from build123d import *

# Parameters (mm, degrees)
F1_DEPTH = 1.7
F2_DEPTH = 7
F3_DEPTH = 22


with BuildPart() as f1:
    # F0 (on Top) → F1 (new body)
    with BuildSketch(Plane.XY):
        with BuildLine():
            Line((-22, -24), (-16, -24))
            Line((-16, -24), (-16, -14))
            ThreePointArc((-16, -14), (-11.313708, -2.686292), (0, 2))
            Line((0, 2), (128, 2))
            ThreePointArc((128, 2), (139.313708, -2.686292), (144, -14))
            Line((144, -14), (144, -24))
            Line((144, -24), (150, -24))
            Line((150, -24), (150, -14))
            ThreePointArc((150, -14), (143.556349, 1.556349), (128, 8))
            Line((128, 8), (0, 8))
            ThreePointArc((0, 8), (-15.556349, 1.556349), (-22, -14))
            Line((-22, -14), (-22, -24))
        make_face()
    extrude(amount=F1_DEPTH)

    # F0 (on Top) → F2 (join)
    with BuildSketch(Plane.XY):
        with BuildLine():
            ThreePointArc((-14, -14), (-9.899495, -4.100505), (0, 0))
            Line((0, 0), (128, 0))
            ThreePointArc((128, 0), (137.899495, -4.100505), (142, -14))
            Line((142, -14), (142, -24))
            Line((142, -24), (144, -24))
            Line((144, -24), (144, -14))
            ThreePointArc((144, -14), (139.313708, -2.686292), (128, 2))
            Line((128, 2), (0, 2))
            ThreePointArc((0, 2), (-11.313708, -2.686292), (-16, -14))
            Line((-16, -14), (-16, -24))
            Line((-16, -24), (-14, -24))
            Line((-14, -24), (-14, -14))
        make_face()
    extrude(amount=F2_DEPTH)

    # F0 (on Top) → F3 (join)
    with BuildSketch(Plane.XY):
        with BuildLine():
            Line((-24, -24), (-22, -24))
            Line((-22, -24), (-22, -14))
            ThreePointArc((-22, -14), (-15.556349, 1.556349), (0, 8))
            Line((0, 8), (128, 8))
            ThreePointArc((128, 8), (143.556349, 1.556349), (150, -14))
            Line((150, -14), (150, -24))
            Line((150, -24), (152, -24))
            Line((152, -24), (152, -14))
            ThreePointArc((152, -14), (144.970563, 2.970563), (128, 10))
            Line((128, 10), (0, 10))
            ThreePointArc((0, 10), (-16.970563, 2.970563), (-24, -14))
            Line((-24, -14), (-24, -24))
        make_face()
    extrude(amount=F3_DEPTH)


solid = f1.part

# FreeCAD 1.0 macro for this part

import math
import FreeCAD as App
import Part
import Sketcher
from FreeCAD import Vector

doc = App.newDocument("Part")
params = doc.addObject("Spreadsheet::Sheet", "Params")
for row, (alias, value) in enumerate([
    ("sketch1_radius", "16.000002 mm"),
    ("sketch1_radius2", "22.000001 mm"),
    ("sketch1_width", "128 mm"),
    ("sketch1_height", "10 mm"),
    ("pad1_length", "1.7 mm"),
    ("sketch2_radius", "14 mm"),
    ("sketch2_radius2", "16.000002 mm"),
    ("sketch2_width", "128 mm"),
    ("sketch2_height", "10 mm"),
    ("pad2_length", "7 mm"),
    ("sketch3_radius", "22.000001 mm"),
    ("sketch3_radius2", "23.999999 mm"),
    ("sketch3_width", "128 mm"),
    ("sketch3_height", "10 mm"),
    ("pad3_length", "22 mm"),
], start=1):
    params.set(f"A{row}", alias)
    params.set(f"B{row}", "=" + value)
    params.setAlias(f"B{row}", alias)

body = doc.addObject("PartDesign::Body", "Body")

# Sketch on XY plane
sketch1 = doc.addObject("Sketcher::SketchObject", "Sketch")
body.addObject(sketch1)
sketch1.AttachmentSupport = (doc.XY_Plane, [""])
sketch1.MapMode = "FlatFace"
sketch1.addGeometry([
    Part.LineSegment(Vector(-22, -24, 0), Vector(-16, -24, 0)),  # 0
    Part.LineSegment(Vector(-16, -24, 0), Vector(-16, -14, 0)),  # 1
    Part.ArcOfCircle(Part.Circle(Vector(0, -14, 0), Vector(0, 0, 1), 16), math.radians(90), math.radians(180)),  # 2
    Part.LineSegment(Vector(0, 2, 0), Vector(128, 2, 0)),  # 3
    Part.ArcOfCircle(Part.Circle(Vector(128, -14, 0), Vector(0, 0, 1), 16), math.radians(0), math.radians(90)),  # 4
    Part.LineSegment(Vector(144, -14, 0), Vector(144, -24, 0)),  # 5
    Part.LineSegment(Vector(144, -24, 0), Vector(150, -24, 0)),  # 6
    Part.LineSegment(Vector(150, -24, 0), Vector(150, -14, 0)),  # 7
    Part.ArcOfCircle(Part.Circle(Vector(128, -14, 0), Vector(0, 0, 1), 22), math.radians(0), math.radians(90)),  # 8
    Part.LineSegment(Vector(128, 8, 0), Vector(0, 8, 0)),  # 9
    Part.ArcOfCircle(Part.Circle(Vector(0, -14, 0), Vector(0, 0, 1), 22), math.radians(90), math.radians(180)),  # 10
    Part.LineSegment(Vector(-22, -14, 0), Vector(-22, -24, 0)),  # 11
], False)
sketch1.addConstraint([
    Sketcher.Constraint("Coincident", 0, 2, 1, 1),
    Sketcher.Constraint("Tangent", 1, 2, 2, 2),
    Sketcher.Constraint("Tangent", 2, 1, 3, 1),
    Sketcher.Constraint("Tangent", 3, 2, 4, 2),
    Sketcher.Constraint("Tangent", 4, 1, 5, 1),
    Sketcher.Constraint("Coincident", 5, 2, 6, 1),
    Sketcher.Constraint("Coincident", 6, 2, 7, 1),
    Sketcher.Constraint("Tangent", 7, 2, 8, 1),
    Sketcher.Constraint("Tangent", 8, 2, 9, 1),
    Sketcher.Constraint("Tangent", 9, 2, 10, 1),
    Sketcher.Constraint("Tangent", 10, 2, 11, 1),
    Sketcher.Constraint("Coincident", 11, 2, 0, 1),
    Sketcher.Constraint("Horizontal", 0),
    Sketcher.Constraint("Vertical", 1),
    Sketcher.Constraint("Horizontal", 3),
    Sketcher.Constraint("Vertical", 5),
    Sketcher.Constraint("Horizontal", 6),
    Sketcher.Constraint("Vertical", 7),
    Sketcher.Constraint("Horizontal", 9),
    Sketcher.Constraint("Vertical", 11),
    Sketcher.Constraint("Coincident", 8, 3, 4, 3),
    Sketcher.Constraint("Coincident", 10, 3, 2, 3),
    Sketcher.Constraint("Equal", 2, 4),
    Sketcher.Constraint("PointOnObject", 2, 3, -2),
    Sketcher.Constraint("Horizontal", 0, 2, 5, 2),
    Sketcher.Constraint("Radius", 2, 16.000002),
    Sketcher.Constraint("Radius", 8, 22.000001),
    Sketcher.Constraint("DistanceX", 3, 1, 3, 2, 128.0),
    Sketcher.Constraint("DistanceY", 1, 1, 1, 2, 10.0),
    Sketcher.Constraint("DistanceY", 2, 3, -1, 1, 14.000002),
])
sketch1.setExpression("Constraints[25]", "Params.sketch1_radius")
sketch1.setExpression("Constraints[26]", "Params.sketch1_radius2")
sketch1.setExpression("Constraints[27]", "Params.sketch1_width")
sketch1.setExpression("Constraints[28]", "Params.sketch1_height")
pad1 = doc.addObject("PartDesign::Pad", "Pad")
body.addObject(pad1)
pad1.Profile = sketch1
pad1.setExpression("Length", "Params.pad1_length")

# Sketch on XY plane
sketch2 = doc.addObject("Sketcher::SketchObject", "Sketch001")
body.addObject(sketch2)
sketch2.AttachmentSupport = (doc.XY_Plane, [""])
sketch2.MapMode = "FlatFace"
sketch2.addGeometry([
    Part.ArcOfCircle(Part.Circle(Vector(0, -14, 0), Vector(0, 0, 1), 14), math.radians(90), math.radians(180)),  # 0
    Part.LineSegment(Vector(0, 0, 0), Vector(128, 0, 0)),  # 1
    Part.ArcOfCircle(Part.Circle(Vector(128, -14, 0), Vector(0, 0, 1), 14), math.radians(0), math.radians(90)),  # 2
    Part.LineSegment(Vector(142, -14, 0), Vector(142, -24, 0)),  # 3
    Part.LineSegment(Vector(142, -24, 0), Vector(144, -24, 0)),  # 4
    Part.LineSegment(Vector(144, -24, 0), Vector(144, -14, 0)),  # 5
    Part.ArcOfCircle(Part.Circle(Vector(128, -14, 0), Vector(0, 0, 1), 16), math.radians(0), math.radians(90)),  # 6
    Part.LineSegment(Vector(128, 2, 0), Vector(0, 2, 0)),  # 7
    Part.ArcOfCircle(Part.Circle(Vector(0, -14, 0), Vector(0, 0, 1), 16), math.radians(90), math.radians(180)),  # 8
    Part.LineSegment(Vector(-16, -14, 0), Vector(-16, -24, 0)),  # 9
    Part.LineSegment(Vector(-16, -24, 0), Vector(-14, -24, 0)),  # 10
    Part.LineSegment(Vector(-14, -24, 0), Vector(-14, -14, 0)),  # 11
], False)
sketch2.addConstraint([
    Sketcher.Constraint("Tangent", 0, 1, 1, 1),
    Sketcher.Constraint("Tangent", 1, 2, 2, 2),
    Sketcher.Constraint("Tangent", 2, 1, 3, 1),
    Sketcher.Constraint("Coincident", 3, 2, 4, 1),
    Sketcher.Constraint("Coincident", 4, 2, 5, 1),
    Sketcher.Constraint("Tangent", 5, 2, 6, 1),
    Sketcher.Constraint("Tangent", 6, 2, 7, 1),
    Sketcher.Constraint("Tangent", 7, 2, 8, 1),
    Sketcher.Constraint("Tangent", 8, 2, 9, 1),
    Sketcher.Constraint("Coincident", 9, 2, 10, 1),
    Sketcher.Constraint("Coincident", 10, 2, 11, 1),
    Sketcher.Constraint("Tangent", 11, 2, 0, 2),
    Sketcher.Constraint("Horizontal", 1),
    Sketcher.Constraint("Vertical", 3),
    Sketcher.Constraint("Horizontal", 4),
    Sketcher.Constraint("Vertical", 5),
    Sketcher.Constraint("Horizontal", 7),
    Sketcher.Constraint("Vertical", 9),
    Sketcher.Constraint("Horizontal", 10),
    Sketcher.Constraint("Vertical", 11),
    Sketcher.Constraint("Coincident", 0, 1, -1, 1),
    Sketcher.Constraint("Coincident", 6, 3, 2, 3),
    Sketcher.Constraint("Coincident", 8, 3, 0, 3),
    Sketcher.Constraint("Equal", 0, 2),
    Sketcher.Constraint("Horizontal", 4, 2, 9, 2),
    Sketcher.Constraint("Radius", 0, 14.0),
    Sketcher.Constraint("Radius", 6, 16.000002),
    Sketcher.Constraint("DistanceX", 1, 1, 1, 2, 128.0),
    Sketcher.Constraint("DistanceY", 3, 2, 3, 1, 10.0),
])
sketch2.setExpression("Constraints[25]", "Params.sketch2_radius")
sketch2.setExpression("Constraints[26]", "Params.sketch2_radius2")
sketch2.setExpression("Constraints[27]", "Params.sketch2_width")
sketch2.setExpression("Constraints[28]", "Params.sketch2_height")
pad2 = doc.addObject("PartDesign::Pad", "Pad001")
body.addObject(pad2)
pad2.Profile = sketch2
pad2.setExpression("Length", "Params.pad2_length")

# Sketch on XY plane
sketch3 = doc.addObject("Sketcher::SketchObject", "Sketch002")
body.addObject(sketch3)
sketch3.AttachmentSupport = (doc.XY_Plane, [""])
sketch3.MapMode = "FlatFace"
sketch3.addGeometry([
    Part.LineSegment(Vector(-24, -24, 0), Vector(-22, -24, 0)),  # 0
    Part.LineSegment(Vector(-22, -24, 0), Vector(-22, -14, 0)),  # 1
    Part.ArcOfCircle(Part.Circle(Vector(0, -14, 0), Vector(0, 0, 1), 22), math.radians(90), math.radians(180)),  # 2
    Part.LineSegment(Vector(0, 8, 0), Vector(128, 8, 0)),  # 3
    Part.ArcOfCircle(Part.Circle(Vector(128, -14, 0), Vector(0, 0, 1), 22), math.radians(0), math.radians(90)),  # 4
    Part.LineSegment(Vector(150, -14, 0), Vector(150, -24, 0)),  # 5
    Part.LineSegment(Vector(150, -24, 0), Vector(152, -24, 0)),  # 6
    Part.LineSegment(Vector(152, -24, 0), Vector(152, -14, 0)),  # 7
    Part.ArcOfCircle(Part.Circle(Vector(128, -14, 0), Vector(0, 0, 1), 24), math.radians(0), math.radians(90)),  # 8
    Part.LineSegment(Vector(128, 10, 0), Vector(0, 10, 0)),  # 9
    Part.ArcOfCircle(Part.Circle(Vector(0, -14, 0), Vector(0, 0, 1), 24), math.radians(90), math.radians(180)),  # 10
    Part.LineSegment(Vector(-24, -14, 0), Vector(-24, -24, 0)),  # 11
], False)
sketch3.addConstraint([
    Sketcher.Constraint("Coincident", 0, 2, 1, 1),
    Sketcher.Constraint("Tangent", 1, 2, 2, 2),
    Sketcher.Constraint("Tangent", 2, 1, 3, 1),
    Sketcher.Constraint("Tangent", 3, 2, 4, 2),
    Sketcher.Constraint("Tangent", 4, 1, 5, 1),
    Sketcher.Constraint("Coincident", 5, 2, 6, 1),
    Sketcher.Constraint("Coincident", 6, 2, 7, 1),
    Sketcher.Constraint("Tangent", 7, 2, 8, 1),
    Sketcher.Constraint("Tangent", 8, 2, 9, 1),
    Sketcher.Constraint("Tangent", 9, 2, 10, 1),
    Sketcher.Constraint("Tangent", 10, 2, 11, 1),
    Sketcher.Constraint("Coincident", 11, 2, 0, 1),
    Sketcher.Constraint("Horizontal", 0),
    Sketcher.Constraint("Vertical", 1),
    Sketcher.Constraint("Horizontal", 3),
    Sketcher.Constraint("Vertical", 5),
    Sketcher.Constraint("Horizontal", 6),
    Sketcher.Constraint("Vertical", 7),
    Sketcher.Constraint("Horizontal", 9),
    Sketcher.Constraint("Vertical", 11),
    Sketcher.Constraint("Coincident", 8, 3, 4, 3),
    Sketcher.Constraint("Coincident", 10, 3, 2, 3),
    Sketcher.Constraint("Equal", 2, 4),
    Sketcher.Constraint("PointOnObject", 2, 3, -2),
    Sketcher.Constraint("Horizontal", 0, 2, 5, 2),
    Sketcher.Constraint("Radius", 2, 22.000001),
    Sketcher.Constraint("Radius", 8, 23.999999),
    Sketcher.Constraint("DistanceX", 3, 1, 3, 2, 128.0),
    Sketcher.Constraint("DistanceY", 1, 1, 1, 2, 10.0),
    Sketcher.Constraint("DistanceY", 2, 3, -1, 1, 14.000001),
])
sketch3.setExpression("Constraints[25]", "Params.sketch3_radius")
sketch3.setExpression("Constraints[26]", "Params.sketch3_radius2")
sketch3.setExpression("Constraints[27]", "Params.sketch3_width")
sketch3.setExpression("Constraints[28]", "Params.sketch3_height")
pad3 = doc.addObject("PartDesign::Pad", "Pad002")
body.addObject(pad3)
pad3.Profile = sketch3
pad3.setExpression("Length", "Params.pad3_length")

doc.recompute()
